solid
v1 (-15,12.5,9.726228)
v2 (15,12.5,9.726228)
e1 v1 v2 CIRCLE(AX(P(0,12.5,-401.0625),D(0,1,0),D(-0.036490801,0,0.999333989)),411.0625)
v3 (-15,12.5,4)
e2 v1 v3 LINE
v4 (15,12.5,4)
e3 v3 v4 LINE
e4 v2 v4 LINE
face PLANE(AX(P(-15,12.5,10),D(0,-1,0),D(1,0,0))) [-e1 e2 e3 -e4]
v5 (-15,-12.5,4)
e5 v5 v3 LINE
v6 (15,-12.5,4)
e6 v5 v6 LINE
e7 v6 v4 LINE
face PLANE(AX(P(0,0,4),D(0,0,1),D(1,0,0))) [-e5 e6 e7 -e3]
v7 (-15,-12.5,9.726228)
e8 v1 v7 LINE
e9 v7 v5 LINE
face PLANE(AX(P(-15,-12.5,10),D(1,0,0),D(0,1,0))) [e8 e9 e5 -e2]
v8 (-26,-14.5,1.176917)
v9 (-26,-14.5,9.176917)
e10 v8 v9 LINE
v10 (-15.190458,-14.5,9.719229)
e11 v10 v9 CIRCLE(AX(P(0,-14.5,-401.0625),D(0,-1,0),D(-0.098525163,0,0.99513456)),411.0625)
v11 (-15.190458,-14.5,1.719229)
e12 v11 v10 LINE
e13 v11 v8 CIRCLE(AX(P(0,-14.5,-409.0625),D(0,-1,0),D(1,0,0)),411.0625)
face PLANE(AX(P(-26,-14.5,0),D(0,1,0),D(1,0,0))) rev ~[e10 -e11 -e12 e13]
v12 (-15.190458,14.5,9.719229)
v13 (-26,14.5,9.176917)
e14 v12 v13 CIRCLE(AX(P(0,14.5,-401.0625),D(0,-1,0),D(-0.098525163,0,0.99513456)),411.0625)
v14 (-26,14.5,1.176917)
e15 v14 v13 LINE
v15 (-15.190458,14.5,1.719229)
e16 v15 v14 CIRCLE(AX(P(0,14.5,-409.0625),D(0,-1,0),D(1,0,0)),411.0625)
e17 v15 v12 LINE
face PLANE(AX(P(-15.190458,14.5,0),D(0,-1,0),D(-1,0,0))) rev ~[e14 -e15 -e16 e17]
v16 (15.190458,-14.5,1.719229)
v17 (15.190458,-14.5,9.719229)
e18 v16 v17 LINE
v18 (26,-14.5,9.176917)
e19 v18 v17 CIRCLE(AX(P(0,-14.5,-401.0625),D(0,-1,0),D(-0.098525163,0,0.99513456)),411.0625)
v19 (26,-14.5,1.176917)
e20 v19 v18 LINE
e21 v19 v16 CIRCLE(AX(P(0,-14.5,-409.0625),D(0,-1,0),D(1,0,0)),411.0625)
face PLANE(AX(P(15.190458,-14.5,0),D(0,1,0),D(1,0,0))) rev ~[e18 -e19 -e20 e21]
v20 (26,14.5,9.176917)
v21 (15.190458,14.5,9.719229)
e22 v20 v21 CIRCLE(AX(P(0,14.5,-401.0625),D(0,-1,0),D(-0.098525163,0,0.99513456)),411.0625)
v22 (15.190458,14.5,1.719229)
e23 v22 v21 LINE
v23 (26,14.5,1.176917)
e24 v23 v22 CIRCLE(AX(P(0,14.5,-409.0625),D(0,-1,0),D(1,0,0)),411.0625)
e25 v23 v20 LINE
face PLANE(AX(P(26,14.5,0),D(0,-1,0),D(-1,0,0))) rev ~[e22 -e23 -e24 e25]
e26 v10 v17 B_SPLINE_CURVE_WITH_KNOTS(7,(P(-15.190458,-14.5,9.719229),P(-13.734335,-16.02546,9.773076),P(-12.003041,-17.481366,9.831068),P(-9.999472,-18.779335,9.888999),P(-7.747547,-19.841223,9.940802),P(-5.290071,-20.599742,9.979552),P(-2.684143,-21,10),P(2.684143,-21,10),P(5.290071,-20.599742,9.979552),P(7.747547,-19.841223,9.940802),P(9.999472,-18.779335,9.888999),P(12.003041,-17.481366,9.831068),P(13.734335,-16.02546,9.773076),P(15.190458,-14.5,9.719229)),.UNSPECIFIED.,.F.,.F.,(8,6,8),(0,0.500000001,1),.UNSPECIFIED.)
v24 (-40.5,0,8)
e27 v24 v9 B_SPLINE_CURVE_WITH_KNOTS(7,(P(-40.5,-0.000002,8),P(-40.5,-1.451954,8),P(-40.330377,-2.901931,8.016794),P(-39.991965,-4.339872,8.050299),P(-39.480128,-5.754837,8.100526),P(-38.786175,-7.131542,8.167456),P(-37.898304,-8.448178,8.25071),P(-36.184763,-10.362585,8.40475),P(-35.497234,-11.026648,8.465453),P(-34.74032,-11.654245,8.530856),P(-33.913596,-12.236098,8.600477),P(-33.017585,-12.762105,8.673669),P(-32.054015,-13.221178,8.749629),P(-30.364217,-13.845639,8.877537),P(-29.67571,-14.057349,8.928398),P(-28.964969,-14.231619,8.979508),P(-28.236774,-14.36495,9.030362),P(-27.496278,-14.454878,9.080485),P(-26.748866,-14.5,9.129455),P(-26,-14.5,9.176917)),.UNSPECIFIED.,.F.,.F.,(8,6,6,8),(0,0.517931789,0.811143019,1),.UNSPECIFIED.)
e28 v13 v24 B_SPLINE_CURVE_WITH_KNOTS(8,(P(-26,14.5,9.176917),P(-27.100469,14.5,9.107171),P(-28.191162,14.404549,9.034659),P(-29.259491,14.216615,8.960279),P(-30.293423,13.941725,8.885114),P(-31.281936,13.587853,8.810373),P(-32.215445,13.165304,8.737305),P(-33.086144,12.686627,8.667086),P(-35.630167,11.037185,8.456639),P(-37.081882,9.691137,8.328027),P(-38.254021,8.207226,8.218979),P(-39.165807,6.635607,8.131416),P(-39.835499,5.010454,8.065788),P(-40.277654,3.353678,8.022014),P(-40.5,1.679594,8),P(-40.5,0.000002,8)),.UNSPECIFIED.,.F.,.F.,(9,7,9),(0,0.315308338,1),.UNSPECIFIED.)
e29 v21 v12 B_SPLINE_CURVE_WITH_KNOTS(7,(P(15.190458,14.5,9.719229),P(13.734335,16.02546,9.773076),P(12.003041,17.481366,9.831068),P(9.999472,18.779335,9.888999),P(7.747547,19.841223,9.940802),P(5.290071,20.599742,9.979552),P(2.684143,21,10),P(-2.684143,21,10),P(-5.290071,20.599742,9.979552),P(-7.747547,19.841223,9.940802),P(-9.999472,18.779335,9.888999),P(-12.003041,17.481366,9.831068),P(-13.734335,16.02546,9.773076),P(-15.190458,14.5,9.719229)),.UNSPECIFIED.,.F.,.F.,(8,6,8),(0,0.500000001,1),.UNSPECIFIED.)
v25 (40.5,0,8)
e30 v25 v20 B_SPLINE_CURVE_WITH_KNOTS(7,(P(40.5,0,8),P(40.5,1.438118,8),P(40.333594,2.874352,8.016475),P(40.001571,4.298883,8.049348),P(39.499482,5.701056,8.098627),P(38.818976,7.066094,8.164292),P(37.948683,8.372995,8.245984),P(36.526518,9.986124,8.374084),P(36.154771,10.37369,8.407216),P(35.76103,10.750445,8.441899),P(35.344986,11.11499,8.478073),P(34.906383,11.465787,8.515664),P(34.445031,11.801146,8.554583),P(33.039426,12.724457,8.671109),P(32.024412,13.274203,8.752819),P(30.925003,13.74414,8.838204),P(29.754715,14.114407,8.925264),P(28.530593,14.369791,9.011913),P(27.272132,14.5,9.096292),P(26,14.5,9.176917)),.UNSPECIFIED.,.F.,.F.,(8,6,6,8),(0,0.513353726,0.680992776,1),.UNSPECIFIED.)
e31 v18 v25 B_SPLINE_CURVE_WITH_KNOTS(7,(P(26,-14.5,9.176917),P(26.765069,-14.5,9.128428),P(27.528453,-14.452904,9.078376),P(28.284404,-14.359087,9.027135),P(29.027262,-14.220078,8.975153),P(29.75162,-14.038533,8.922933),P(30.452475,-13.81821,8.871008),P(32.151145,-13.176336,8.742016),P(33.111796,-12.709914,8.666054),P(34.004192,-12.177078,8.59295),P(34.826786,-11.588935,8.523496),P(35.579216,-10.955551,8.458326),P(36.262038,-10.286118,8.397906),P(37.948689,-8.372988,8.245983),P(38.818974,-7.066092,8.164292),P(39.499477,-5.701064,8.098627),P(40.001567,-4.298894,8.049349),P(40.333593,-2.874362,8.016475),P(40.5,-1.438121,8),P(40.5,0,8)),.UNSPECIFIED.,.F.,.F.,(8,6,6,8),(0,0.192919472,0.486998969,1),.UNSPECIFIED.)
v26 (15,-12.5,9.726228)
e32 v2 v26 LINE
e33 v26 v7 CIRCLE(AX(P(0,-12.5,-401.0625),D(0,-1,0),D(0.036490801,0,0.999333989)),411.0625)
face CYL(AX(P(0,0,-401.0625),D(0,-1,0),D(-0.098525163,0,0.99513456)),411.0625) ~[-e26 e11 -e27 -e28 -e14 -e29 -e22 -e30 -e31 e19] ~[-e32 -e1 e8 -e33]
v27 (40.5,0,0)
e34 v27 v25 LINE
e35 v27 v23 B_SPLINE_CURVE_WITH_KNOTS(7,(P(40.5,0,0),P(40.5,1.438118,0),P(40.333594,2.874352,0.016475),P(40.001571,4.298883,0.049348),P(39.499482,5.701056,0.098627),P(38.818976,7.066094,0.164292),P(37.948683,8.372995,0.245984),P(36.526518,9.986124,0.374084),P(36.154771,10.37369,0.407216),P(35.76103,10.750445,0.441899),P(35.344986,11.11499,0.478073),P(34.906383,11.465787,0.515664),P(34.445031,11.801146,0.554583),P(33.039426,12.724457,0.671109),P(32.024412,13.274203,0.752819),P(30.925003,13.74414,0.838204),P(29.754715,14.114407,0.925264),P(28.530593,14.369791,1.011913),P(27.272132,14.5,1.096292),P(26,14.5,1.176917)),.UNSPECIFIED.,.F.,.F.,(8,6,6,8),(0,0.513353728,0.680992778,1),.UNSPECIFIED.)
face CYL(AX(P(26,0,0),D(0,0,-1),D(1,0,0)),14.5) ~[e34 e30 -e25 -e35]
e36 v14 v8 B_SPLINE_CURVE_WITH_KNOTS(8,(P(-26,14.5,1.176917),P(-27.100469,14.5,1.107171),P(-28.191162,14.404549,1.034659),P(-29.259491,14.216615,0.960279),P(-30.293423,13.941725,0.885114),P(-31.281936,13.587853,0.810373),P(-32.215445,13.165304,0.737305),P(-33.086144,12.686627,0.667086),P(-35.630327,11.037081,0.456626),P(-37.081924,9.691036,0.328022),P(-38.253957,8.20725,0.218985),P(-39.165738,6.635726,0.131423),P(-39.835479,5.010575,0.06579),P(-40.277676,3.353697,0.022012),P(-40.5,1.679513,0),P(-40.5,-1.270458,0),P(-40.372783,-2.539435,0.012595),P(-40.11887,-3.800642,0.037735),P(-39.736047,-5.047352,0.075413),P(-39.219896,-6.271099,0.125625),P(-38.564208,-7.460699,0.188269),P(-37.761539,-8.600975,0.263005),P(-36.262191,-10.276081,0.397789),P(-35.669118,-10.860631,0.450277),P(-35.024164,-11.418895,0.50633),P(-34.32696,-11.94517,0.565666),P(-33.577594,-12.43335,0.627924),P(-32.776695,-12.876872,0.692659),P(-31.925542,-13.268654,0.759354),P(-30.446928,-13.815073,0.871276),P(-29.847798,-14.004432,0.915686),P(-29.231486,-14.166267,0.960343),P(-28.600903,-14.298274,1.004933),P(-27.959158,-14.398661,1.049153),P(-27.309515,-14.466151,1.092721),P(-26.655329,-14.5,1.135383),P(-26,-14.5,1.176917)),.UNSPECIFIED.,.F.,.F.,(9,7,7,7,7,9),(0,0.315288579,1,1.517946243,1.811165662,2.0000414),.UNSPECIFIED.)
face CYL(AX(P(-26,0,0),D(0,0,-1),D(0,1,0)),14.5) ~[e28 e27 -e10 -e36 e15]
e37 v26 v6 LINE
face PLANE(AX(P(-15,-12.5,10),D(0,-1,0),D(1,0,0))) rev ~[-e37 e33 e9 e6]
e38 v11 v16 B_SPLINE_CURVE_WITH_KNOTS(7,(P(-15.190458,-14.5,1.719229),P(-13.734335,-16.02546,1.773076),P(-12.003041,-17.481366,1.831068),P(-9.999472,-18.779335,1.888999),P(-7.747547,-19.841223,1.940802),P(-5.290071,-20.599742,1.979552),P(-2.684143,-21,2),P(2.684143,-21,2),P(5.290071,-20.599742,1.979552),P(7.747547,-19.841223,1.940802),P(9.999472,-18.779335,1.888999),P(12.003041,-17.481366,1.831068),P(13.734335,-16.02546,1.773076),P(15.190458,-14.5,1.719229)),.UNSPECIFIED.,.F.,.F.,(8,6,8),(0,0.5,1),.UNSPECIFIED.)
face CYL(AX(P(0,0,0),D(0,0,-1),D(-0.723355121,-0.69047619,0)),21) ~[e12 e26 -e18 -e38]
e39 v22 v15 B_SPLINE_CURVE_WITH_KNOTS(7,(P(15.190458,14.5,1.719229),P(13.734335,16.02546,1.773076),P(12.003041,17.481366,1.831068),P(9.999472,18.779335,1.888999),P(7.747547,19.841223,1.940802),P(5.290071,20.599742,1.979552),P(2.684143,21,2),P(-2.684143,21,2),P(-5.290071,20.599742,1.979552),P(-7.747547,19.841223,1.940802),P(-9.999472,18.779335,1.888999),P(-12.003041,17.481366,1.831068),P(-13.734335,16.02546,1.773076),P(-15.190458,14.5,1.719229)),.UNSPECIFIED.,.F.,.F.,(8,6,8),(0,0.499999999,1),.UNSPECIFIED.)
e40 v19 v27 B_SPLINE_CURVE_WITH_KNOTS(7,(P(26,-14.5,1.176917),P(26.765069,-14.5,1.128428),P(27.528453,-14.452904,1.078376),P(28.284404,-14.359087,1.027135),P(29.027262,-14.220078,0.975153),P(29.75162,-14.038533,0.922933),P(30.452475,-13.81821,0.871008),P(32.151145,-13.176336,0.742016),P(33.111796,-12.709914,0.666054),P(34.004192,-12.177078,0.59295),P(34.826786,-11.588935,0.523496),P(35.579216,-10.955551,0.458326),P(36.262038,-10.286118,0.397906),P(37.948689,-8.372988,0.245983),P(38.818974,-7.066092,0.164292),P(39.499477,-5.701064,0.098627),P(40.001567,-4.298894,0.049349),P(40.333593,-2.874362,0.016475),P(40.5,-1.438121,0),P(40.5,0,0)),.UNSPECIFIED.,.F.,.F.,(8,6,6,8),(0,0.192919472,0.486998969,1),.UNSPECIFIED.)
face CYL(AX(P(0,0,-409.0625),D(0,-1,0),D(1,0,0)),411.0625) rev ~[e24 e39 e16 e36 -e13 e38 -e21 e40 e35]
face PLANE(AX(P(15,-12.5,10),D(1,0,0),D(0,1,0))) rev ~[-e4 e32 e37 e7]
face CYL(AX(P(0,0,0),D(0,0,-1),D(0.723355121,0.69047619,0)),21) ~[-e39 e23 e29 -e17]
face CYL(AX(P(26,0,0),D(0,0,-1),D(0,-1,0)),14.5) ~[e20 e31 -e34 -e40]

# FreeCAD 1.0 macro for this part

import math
import FreeCAD as App
import Part
import Sketcher
Q = App.Units.Quantity

doc = App.newDocument("Part")
params = doc.addObject("Spreadsheet::Sheet", "Params")
for row, (alias, value) in enumerate([
    ("sketch1_radius", "21 mm"),
    ("sketch1_radius2", "14.5 mm"),
    ("pad1_length", "10 mm"),
    ("pocket1_length", "100 mm"),
    ("sketch3_width", "30 mm"),
    ("sketch3_height", "25 mm"),
    ("pocket2_length", "6 mm"),
    ("sketch4_width", "81 mm"),
    ("sketch4_height", "30 mm"),
    ("pocket3_length", "100 mm"),
], start=1):
    params.set(f"A{row}", alias)
    params.set(f"B{row}", "=" + value)
    params.setAlias(f"B{row}", alias)

body = doc.addObject("PartDesign::Body", "Body")

# Sketch on XY plane
sketch1 = body.newObject("Sketcher::SketchObject", "Sketch")
sketch1.AttachmentSupport = (doc.getObject("XY_Plane"), [""])
sketch1.MapMode = "FlatFace"
sketch1.addGeometry([
    Part.ArcOfCircle(Part.Circle(App.Vector(-26, 0, 0), App.Vector(0, 0, 1), 14.5), math.radians(90), math.radians(270)),  # 0
    Part.LineSegment(App.Vector(-26, -14.5, 0), App.Vector(-15.190458, -14.5, 0)),  # 1
    Part.ArcOfCircle(Part.Circle(App.Vector(0, 0, 0), App.Vector(0, 0, 1), 21), math.radians(-136.332185), math.radians(-43.667815)),  # 2
    Part.LineSegment(App.Vector(15.190458, -14.5, 0), App.Vector(26, -14.5, 0)),  # 3
    Part.ArcOfCircle(Part.Circle(App.Vector(26, 0, 0), App.Vector(0, 0, 1), 14.5), math.radians(-90), math.radians(0)),  # 4
    Part.ArcOfCircle(Part.Circle(App.Vector(26, 0, 0), App.Vector(0, 0, 1), 14.5), math.radians(0), math.radians(90)),  # 5
    Part.LineSegment(App.Vector(26, 14.5, 0), App.Vector(15.190458, 14.5, 0)),  # 6
    Part.ArcOfCircle(Part.Circle(App.Vector(0, 0, 0), App.Vector(0, 0, 1), 21), math.radians(43.667815), math.radians(136.332185)),  # 7
    Part.LineSegment(App.Vector(-15.190458, 14.5, 0), App.Vector(-26, 14.5, 0)),  # 8
], False)
sketch1.addConstraint([
    Sketcher.Constraint("Tangent", 0, 2, 1, 1),
    Sketcher.Constraint("Coincident", 1, 2, 2, 1),
    Sketcher.Constraint("Coincident", 2, 2, 3, 1),
    Sketcher.Constraint("Tangent", 3, 2, 4, 1),
    Sketcher.Constraint("Tangent", 4, 2, 5, 1),
    Sketcher.Constraint("Tangent", 5, 2, 6, 1),
    Sketcher.Constraint("Coincident", 6, 2, 7, 1),
    Sketcher.Constraint("Coincident", 7, 2, 8, 1),
    Sketcher.Constraint("Tangent", 8, 2, 0, 1),
    Sketcher.Constraint("Horizontal", 1),
    Sketcher.Constraint("Horizontal", 3),
    Sketcher.Constraint("Horizontal", 6),
    Sketcher.Constraint("Horizontal", 8),
    Sketcher.Constraint("Coincident", 2, 3, -1, 1),
    Sketcher.Constraint("Coincident", 7, 3, -1, 1),
    Sketcher.Constraint("Equal", 0, 4),
    Sketcher.Constraint("Equal", 4, 5),
    Sketcher.Constraint("Equal", 2, 7),
    Sketcher.Constraint("Symmetric", 0, 3, 4, 3, -1, 1),
    Sketcher.Constraint("PointOnObject", 0, 3, -1),
    Sketcher.Constraint("PointOnObject", 4, 2, -1),
    Sketcher.Constraint("Radius", 2, Q("21 mm")),
    Sketcher.Constraint("Radius", 0, Q("14.5 mm")),
    Sketcher.Constraint("DistanceX", 0, 3, -1, 1, Q("26 mm")),
])
sketch1.setExpression("Constraints[21]", "Params.sketch1_radius")
sketch1.setExpression("Constraints[22]", "Params.sketch1_radius2")
pad1 = body.newObject("PartDesign::Pad", "Pad")
pad1.Profile = sketch1
pad1.setExpression("Length", "Params.pad1_length")

# Sketch on XZ plane
sketch2 = body.newObject("Sketcher::SketchObject", "Sketch001")
sketch2.AttachmentSupport = (doc.getObject("XZ_Plane"), [""])
sketch2.MapMode = "FlatFace"
sketch2.addGeometry(Part.Circle(App.Vector(0, -409.0625, 0), App.Vector(0, 0, 1), 411.0625), False)
sketch2.addConstraint([
    Sketcher.Constraint("PointOnObject", 0, 3, -2),
    Sketcher.Constraint("Diameter", 0, Q("822.125 mm")),
    Sketcher.Constraint("DistanceY", 0, 3, -1, 1, Q("409.0625 mm")),
])
pocket1 = body.newObject("PartDesign::Pocket", "Pocket")
pocket1.Profile = sketch2
pocket1.setExpression("Length", "Params.pocket1_length")
pocket1.Midplane = True

# Sketch on XY plane
sketch3 = body.newObject("Sketcher::SketchObject", "Sketch002")
sketch3.AttachmentSupport = (doc.getObject("XY_Plane"), [""])
sketch3.MapMode = "FlatFace"
sketch3.AttachmentOffset = App.Placement(App.Vector(0, 0, 10), App.Rotation())
sketch3.addGeometry([
    Part.LineSegment(App.Vector(-15, 12.5, 0), App.Vector(-15, -12.5, 0)),
    Part.LineSegment(App.Vector(-15, -12.5, 0), App.Vector(15, -12.5, 0)),
    Part.LineSegment(App.Vector(15, -12.5, 0), App.Vector(15, 12.5, 0)),
    Part.LineSegment(App.Vector(15, 12.5, 0), App.Vector(-15, 12.5, 0)),
], False)
sketch3.addConstraint([
    Sketcher.Constraint("Coincident", 0, 2, 1, 1),
    Sketcher.Constraint("Coincident", 1, 2, 2, 1),
    Sketcher.Constraint("Coincident", 2, 2, 3, 1),
    Sketcher.Constraint("Coincident", 3, 2, 0, 1),
    Sketcher.Constraint("Vertical", 0),
    Sketcher.Constraint("Horizontal", 1),
    Sketcher.Constraint("Vertical", 2),
    Sketcher.Constraint("Horizontal", 3),
    Sketcher.Constraint("Symmetric", 0, 2, 2, 2, -1, 1),
    Sketcher.Constraint("DistanceX", 1, 1, 1, 2, Q("30 mm")),
    Sketcher.Constraint("DistanceY", 0, 2, 0, 1, Q("25 mm")),
])
sketch3.setExpression("Constraints[9]", "Params.sketch3_width")
sketch3.setExpression("Constraints[10]", "Params.sketch3_height")
pocket2 = body.newObject("PartDesign::Pocket", "Pocket001")
pocket2.Profile = sketch3
pocket2.setExpression("Length", "Params.pocket2_length")

# Sketch on XZ plane
sketch4 = body.newObject("Sketcher::SketchObject", "Sketch003")
sketch4.AttachmentSupport = (doc.getObject("XZ_Plane"), [""])
sketch4.MapMode = "FlatFace"
sketch4.addGeometry([
    Part.ArcOfCircle(Part.Circle(App.Vector(0, -401.0625, 0), App.Vector(0, 0, 1), 411.0625), math.radians(84.345751), math.radians(95.654249)),
    Part.LineSegment(App.Vector(40.5, 8, 0), App.Vector(40.5, 38, 0)),
    Part.LineSegment(App.Vector(40.5, 38, 0), App.Vector(-40.5, 38, 0)),
    Part.LineSegment(App.Vector(-40.5, 38, 0), App.Vector(-40.5, 8, 0)),
], False)
sketch4.addConstraint([
    Sketcher.Constraint("Coincident", 0, 1, 1, 1),
    Sketcher.Constraint("Coincident", 1, 2, 2, 1),
    Sketcher.Constraint("Coincident", 2, 2, 3, 1),
    Sketcher.Constraint("Coincident", 3, 2, 0, 2),
    Sketcher.Constraint("Vertical", 1),
    Sketcher.Constraint("Horizontal", 2),
    Sketcher.Constraint("Vertical", 3),
    Sketcher.Constraint("PointOnObject", 0, 3, -2),
    Sketcher.Constraint("Equal", 1, 3),
    Sketcher.Constraint("DistanceX", 2, 2, 2, 1, Q("81 mm")),
    Sketcher.Constraint("DistanceY", 1, 1, 1, 2, Q("30 mm")),
    Sketcher.Constraint("DistanceY", -1, 1, 0, 1, Q("8 mm")),
    Sketcher.Constraint("Radius", 0, Q("411.0625 mm")),
])
sketch4.setExpression("Constraints[9]", "Params.sketch4_width")
sketch4.setExpression("Constraints[10]", "Params.sketch4_height")
pocket3 = body.newObject("PartDesign::Pocket", "Pocket002")
pocket3.Profile = sketch4
pocket3.setExpression("Length", "Params.pocket3_length")
pocket3.Midplane = True

doc.recompute()
